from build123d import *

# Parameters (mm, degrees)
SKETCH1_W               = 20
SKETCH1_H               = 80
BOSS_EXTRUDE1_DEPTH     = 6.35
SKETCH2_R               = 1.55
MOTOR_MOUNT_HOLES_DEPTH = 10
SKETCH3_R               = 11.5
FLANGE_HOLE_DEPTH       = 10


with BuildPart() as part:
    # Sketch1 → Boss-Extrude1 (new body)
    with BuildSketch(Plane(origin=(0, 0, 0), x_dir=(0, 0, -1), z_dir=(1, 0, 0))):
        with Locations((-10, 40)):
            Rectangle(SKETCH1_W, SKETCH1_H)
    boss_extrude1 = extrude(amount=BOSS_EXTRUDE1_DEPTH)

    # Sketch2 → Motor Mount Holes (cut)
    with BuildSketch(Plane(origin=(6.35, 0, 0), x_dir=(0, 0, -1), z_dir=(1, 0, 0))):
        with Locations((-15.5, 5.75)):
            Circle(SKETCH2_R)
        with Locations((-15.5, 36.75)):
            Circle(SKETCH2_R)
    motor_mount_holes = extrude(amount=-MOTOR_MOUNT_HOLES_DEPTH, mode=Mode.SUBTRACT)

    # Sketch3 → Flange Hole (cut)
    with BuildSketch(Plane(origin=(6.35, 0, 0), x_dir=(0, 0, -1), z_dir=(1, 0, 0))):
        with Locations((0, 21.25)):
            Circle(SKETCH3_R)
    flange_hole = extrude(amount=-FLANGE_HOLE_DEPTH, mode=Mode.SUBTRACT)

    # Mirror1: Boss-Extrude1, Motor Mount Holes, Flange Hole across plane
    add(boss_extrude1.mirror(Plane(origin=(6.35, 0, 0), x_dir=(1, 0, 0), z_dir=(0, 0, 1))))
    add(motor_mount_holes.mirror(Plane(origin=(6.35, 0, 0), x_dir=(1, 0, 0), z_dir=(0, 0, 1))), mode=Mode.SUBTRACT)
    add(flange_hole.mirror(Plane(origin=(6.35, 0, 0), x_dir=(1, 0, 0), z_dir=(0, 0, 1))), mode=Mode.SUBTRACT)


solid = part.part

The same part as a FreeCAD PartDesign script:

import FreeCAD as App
import Part
import Sketcher

doc = App.newDocument("Part")
body = doc.addObject("PartDesign::Body", "Body")

sketch1 = body.newObject("Sketcher::SketchObject", "Sketch")
sketch1.AttachmentSupport = (doc.getObject("YZ_Plane"), [""])
sketch1.MapMode = "FlatFace"
sketch1.addGeometry([
    Part.LineSegment(App.Vector(80, 20, 0), App.Vector(0, 20, 0)),
    Part.LineSegment(App.Vector(0, 20, 0), App.Vector(0, 0, 0)),
    Part.LineSegment(App.Vector(0, 0, 0), App.Vector(80, 0, 0)),
    Part.LineSegment(App.Vector(80, 0, 0), App.Vector(80, 20, 0)),
], False)
sketch1.addConstraint([
    Sketcher.Constraint("Coincident", 0, 2, 1, 1),
    Sketcher.Constraint("Coincident", 1, 2, 2, 1),
    Sketcher.Constraint("Coincident", 2, 2, 3, 1),
    Sketcher.Constraint("Coincident", 3, 2, 0, 1),
    Sketcher.Constraint("Horizontal", 0),
    Sketcher.Constraint("Vertical", 1),
    Sketcher.Constraint("Horizontal", 2),
    Sketcher.Constraint("Vertical", 3),
    Sketcher.Constraint("Coincident", 1, 2, -1, 1),
    Sketcher.Constraint("DistanceX", 0, 2, 0, 1, 80.0),
    Sketcher.Constraint("DistanceY", 1, 2, 1, 1, 20.0),
])
pad1 = body.newObject("PartDesign::Pad", "Pad")
pad1.Profile = sketch1
pad1.Length = 6.35

sketch2 = body.newObject("Sketcher::SketchObject", "Sketch001")
sketch2.AttachmentSupport = (doc.getObject("YZ_Plane"), [""])
sketch2.MapMode = "FlatFace"
sketch2.AttachmentOffset = App.Placement(App.Vector(0, 0, 6.35), App.Rotation())
sketch2.addGeometry([
    Part.Circle(App.Vector(5.8, 15.5, 0), App.Vector(0, 0, 1), 1.6),
    Part.Circle(App.Vector(36.8, 15.5, 0), App.Vector(0, 0, 1), 1.6),
], False)
sketch2.addConstraint([
    Sketcher.Constraint("Equal", 0, 1),
    Sketcher.Constraint("Horizontal", 0, 3, 1, 3),
    Sketcher.Constraint("Diameter", 0, 3.1),
    Sketcher.Constraint("DistanceX", 0, 3, 1, 3, 31.0),
    Sketcher.Constraint("DistanceY", -1, 1, 0, 3, 15.5),
    Sketcher.Constraint("DistanceX", -1, 1, 0, 3, 5.75),
])
pocket1 = body.newObject("PartDesign::Pocket", "Pocket")
pocket1.Profile = sketch2
pocket1.Length = 10

sketch3 = body.newObject("Sketcher::SketchObject", "Sketch002")
sketch3.AttachmentSupport = (doc.getObject("YZ_Plane"), [""])
sketch3.MapMode = "FlatFace"
sketch3.AttachmentOffset = App.Placement(App.Vector(0, 0, 6.35), App.Rotation())
sketch3.addGeometry(Part.Circle(App.Vector(21, 0, 0), App.Vector(0, 0, 1), 12), False)
sketch3.addConstraint([
    Sketcher.Constraint("PointOnObject", 0, 3, -1),
    Sketcher.Constraint("Diameter", 0, 23.0),
    Sketcher.Constraint("DistanceX", -1, 1, 0, 3, 21.25),
])
pocket2 = body.newObject("PartDesign::Pocket", "Pocket001")
pocket2.Profile = sketch3
pocket2.Length = 10
doc.recompute()

mirrored = body.newObject("PartDesign::Mirrored", "Mirrored")
mirrored.Originals = [pad1, pocket1, pocket2]
mirrored.MirrorPlane = (doc.getObject("XY_Plane"), [""])
body.Tip = mirrored

doc.recompute()
